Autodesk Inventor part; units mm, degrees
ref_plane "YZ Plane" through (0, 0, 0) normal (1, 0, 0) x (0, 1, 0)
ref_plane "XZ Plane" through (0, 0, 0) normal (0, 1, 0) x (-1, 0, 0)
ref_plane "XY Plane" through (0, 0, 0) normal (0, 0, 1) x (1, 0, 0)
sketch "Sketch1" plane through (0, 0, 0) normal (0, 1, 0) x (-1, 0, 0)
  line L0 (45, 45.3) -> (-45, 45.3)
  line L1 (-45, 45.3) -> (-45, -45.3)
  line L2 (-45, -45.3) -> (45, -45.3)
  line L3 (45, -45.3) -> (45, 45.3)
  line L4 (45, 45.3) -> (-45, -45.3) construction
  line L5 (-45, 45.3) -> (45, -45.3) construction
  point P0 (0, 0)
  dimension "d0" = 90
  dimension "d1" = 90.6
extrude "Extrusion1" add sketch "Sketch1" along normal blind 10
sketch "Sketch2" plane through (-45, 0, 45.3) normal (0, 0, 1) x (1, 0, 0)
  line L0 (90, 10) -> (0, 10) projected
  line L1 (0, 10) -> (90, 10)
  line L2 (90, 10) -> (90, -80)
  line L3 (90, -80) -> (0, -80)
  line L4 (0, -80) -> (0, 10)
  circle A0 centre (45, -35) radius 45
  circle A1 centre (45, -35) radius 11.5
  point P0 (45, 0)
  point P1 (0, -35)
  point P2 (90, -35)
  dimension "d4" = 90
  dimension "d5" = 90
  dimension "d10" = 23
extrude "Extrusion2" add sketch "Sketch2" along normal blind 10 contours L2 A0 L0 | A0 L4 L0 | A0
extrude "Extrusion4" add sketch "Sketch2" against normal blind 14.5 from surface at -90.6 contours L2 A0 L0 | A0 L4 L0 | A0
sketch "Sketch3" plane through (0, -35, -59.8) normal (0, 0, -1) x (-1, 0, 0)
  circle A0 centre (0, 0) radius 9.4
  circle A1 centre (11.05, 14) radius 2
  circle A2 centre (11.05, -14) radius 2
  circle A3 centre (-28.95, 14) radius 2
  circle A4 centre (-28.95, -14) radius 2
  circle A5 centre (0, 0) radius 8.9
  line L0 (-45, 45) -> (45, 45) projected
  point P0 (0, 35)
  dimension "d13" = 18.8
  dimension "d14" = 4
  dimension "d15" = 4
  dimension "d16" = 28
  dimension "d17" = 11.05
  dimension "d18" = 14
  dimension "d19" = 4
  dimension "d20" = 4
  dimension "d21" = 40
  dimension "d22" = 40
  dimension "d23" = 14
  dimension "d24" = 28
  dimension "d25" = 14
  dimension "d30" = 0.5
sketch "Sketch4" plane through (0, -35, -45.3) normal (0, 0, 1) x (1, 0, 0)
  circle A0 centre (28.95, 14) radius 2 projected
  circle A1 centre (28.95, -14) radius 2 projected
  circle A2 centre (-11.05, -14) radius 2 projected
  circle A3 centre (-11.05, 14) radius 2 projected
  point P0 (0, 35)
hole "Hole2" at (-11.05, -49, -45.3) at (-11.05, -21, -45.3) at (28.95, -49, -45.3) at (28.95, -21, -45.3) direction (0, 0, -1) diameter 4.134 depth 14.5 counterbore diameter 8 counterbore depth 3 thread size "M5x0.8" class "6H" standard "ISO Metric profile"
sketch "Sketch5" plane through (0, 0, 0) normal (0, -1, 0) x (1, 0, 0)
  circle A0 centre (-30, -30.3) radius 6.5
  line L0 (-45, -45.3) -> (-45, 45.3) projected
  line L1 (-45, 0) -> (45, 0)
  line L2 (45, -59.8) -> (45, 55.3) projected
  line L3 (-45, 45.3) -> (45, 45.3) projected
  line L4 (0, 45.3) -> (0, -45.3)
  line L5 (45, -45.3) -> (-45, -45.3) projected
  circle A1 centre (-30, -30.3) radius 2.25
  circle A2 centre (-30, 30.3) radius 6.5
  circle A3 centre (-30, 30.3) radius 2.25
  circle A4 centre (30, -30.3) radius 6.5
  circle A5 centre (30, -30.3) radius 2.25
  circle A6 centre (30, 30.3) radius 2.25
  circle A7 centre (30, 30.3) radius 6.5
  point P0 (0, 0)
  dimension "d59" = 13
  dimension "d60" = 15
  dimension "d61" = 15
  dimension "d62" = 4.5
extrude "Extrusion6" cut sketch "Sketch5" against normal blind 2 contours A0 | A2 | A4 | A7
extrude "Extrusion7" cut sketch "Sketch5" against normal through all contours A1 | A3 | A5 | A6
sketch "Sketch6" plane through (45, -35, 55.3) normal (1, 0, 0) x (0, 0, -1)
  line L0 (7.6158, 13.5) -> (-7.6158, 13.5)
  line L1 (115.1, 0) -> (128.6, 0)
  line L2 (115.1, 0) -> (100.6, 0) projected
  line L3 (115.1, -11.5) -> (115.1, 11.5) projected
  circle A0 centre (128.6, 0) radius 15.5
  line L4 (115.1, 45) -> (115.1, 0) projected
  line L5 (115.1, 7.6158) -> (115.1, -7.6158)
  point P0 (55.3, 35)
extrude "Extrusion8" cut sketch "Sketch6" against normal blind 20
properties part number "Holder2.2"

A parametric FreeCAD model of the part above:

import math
import FreeCAD as App
import Part
import Sketcher
from FreeCAD import Vector


def add_polygon(sketch, points):
    """Adds a closed chain of lines whose ends are joined by coincident constraints."""
    first, n = sketch.GeometryCount, len(points)
    for a, b in zip(points, points[1:] + points[:1]):
        sketch.addGeometry(Part.LineSegment(App.Vector(*a, 0), App.Vector(*b, 0)), False)
    for i in range(n):
        sketch.addConstraint(Sketcher.Constraint("Coincident", first + i, 2, first + (i + 1) % n, 1))

doc = App.newDocument("Part")
body = doc.addObject("PartDesign::Body", "Body")

# Sketch on XZ plane
sketch1 = doc.addObject("Sketcher::SketchObject", "Sketch")
body.addObject(sketch1)
sketch1.AttachmentSupport = (doc.XZ_Plane, [""])
sketch1.MapMode = "FlatFace"
add_polygon(sketch1, [(-45, -45.3), (-45, 45.3), (45, 45.3), (45, -45.3)])  # lines 0-3
sketch1.addConstraint(Sketcher.Constraint("Vertical", 0))
sketch1.addConstraint(Sketcher.Constraint("Horizontal", 1))
sketch1.addConstraint(Sketcher.Constraint("Vertical", 2))
sketch1.addConstraint(Sketcher.Constraint("Horizontal", 3))
sketch1.addConstraint(Sketcher.Constraint("Symmetric", 0, 2, 2, 2, -1, 1))
sketch1.addConstraint(Sketcher.Constraint("DistanceX", 1, 1, 1, 2, 90.0))
sketch1.addConstraint(Sketcher.Constraint("DistanceY", 0, 1, 0, 2, 90.6))
pad1 = doc.addObject("PartDesign::Pad", "Pad")
body.addObject(pad1)
pad1.Profile = sketch1
pad1.Length = 10
pad1.Reversed = True

# Sketch on XY plane
sketch2 = doc.addObject("Sketcher::SketchObject", "Sketch001")
body.addObject(sketch2)
sketch2.AttachmentSupport = (doc.XY_Plane, [""])
sketch2.MapMode = "FlatFace"
sketch2.AttachmentOffset = App.Placement(Vector(0, 0, 45.3), App.Rotation())
sketch2.addGeometry(Part.LineSegment(Vector(45, -35, 0), Vector(45, 10, 0)), False)
sketch2.addGeometry(Part.LineSegment(Vector(45, 10, 0), Vector(-45, 10, 0)), False)
sketch2.addGeometry(Part.LineSegment(Vector(-45, 10, 0), Vector(-45, -35, 0)), False)
sketch2.addGeometry(Part.ArcOfCircle(Part.Circle(Vector(0, -35, 0), Vector(0, 0, 1), 45), math.radians(180), math.radians(360)), False)
sketch2.addGeometry(Part.Circle(Vector(0, -35, 0), Vector(0, 0, 1), 11.5), False)
sketch2.addConstraint(Sketcher.Constraint("Coincident", 0, 2, 1, 1))
sketch2.addConstraint(Sketcher.Constraint("Coincident", 1, 2, 2, 1))
sketch2.addConstraint(Sketcher.Constraint("Tangent", 2, 2, 3, 1))
sketch2.addConstraint(Sketcher.Constraint("Tangent", 3, 2, 0, 1))
sketch2.addConstraint(Sketcher.Constraint("Vertical", 0))
sketch2.addConstraint(Sketcher.Constraint("Horizontal", 1))
sketch2.addConstraint(Sketcher.Constraint("Vertical", 2))
sketch2.addConstraint(Sketcher.Constraint("Coincident", 4, 3, 3, 3))
sketch2.addConstraint(Sketcher.Constraint("PointOnObject", 3, 3, -2))
sketch2.addConstraint(Sketcher.Constraint("Diameter", 4, 23.0))
sketch2.addConstraint(Sketcher.Constraint("Radius", 3, 45.0))
sketch2.addConstraint(Sketcher.Constraint("DistanceY", 0, 1, 0, 2, 45.0))
sketch2.addConstraint(Sketcher.Constraint("DistanceY", 3, 3, -1, 1, 35.0))
pad2 = doc.addObject("PartDesign::Pad", "Pad001")
body.addObject(pad2)
pad2.Profile = sketch2
pad2.Length = 10

# Sketch on XY plane
sketch3 = doc.addObject("Sketcher::SketchObject", "Sketch002")
body.addObject(sketch3)
sketch3.AttachmentSupport = (doc.XY_Plane, [""])
sketch3.MapMode = "FlatFace"
sketch3.AttachmentOffset = App.Placement(Vector(0, 0, -45.3), App.Rotation())
sketch3.addGeometry(Part.LineSegment(Vector(45, -35, 0), Vector(45, 10, 0)), False)
sketch3.addGeometry(Part.LineSegment(Vector(45, 10, 0), Vector(-45, 10, 0)), False)
sketch3.addGeometry(Part.LineSegment(Vector(-45, 10, 0), Vector(-45, -35, 0)), False)
sketch3.addGeometry(Part.ArcOfCircle(Part.Circle(Vector(0, -35, 0), Vector(0, 0, 1), 45), math.radians(180), math.radians(360)), False)
sketch3.addGeometry(Part.Circle(Vector(0, -35, 0), Vector(0, 0, 1), 11.5), False)
sketch3.addConstraint(Sketcher.Constraint("Coincident", 0, 2, 1, 1))
sketch3.addConstraint(Sketcher.Constraint("Coincident", 1, 2, 2, 1))
sketch3.addConstraint(Sketcher.Constraint("Tangent", 2, 2, 3, 1))
sketch3.addConstraint(Sketcher.Constraint("Tangent", 3, 2, 0, 1))
sketch3.addConstraint(Sketcher.Constraint("Vertical", 0))
sketch3.addConstraint(Sketcher.Constraint("Horizontal", 1))
sketch3.addConstraint(Sketcher.Constraint("Vertical", 2))
sketch3.addConstraint(Sketcher.Constraint("Coincident", 4, 3, 3, 3))
sketch3.addConstraint(Sketcher.Constraint("PointOnObject", 3, 3, -2))
sketch3.addConstraint(Sketcher.Constraint("Diameter", 4, 23.0))
sketch3.addConstraint(Sketcher.Constraint("Radius", 3, 45.0))
sketch3.addConstraint(Sketcher.Constraint("DistanceY", 0, 1, 0, 2, 45.0))
sketch3.addConstraint(Sketcher.Constraint("DistanceY", 3, 3, -1, 1, 35.0))
pad3 = doc.addObject("PartDesign::Pad", "Pad002")
body.addObject(pad3)
pad3.Profile = sketch3
pad3.Length = 14.5
pad3.Reversed = True

# Sketch on XY plane
sketch4 = doc.addObject("Sketcher::SketchObject", "Sketch003")
body.addObject(sketch4)
sketch4.AttachmentSupport = (doc.XY_Plane, [""])
sketch4.MapMode = "FlatFace"
sketch4.AttachmentOffset = App.Placement(Vector(0, 0, -45.3), App.Rotation())
sketch4.addGeometry(Part.Circle(Vector(-11.05, -49, 0), Vector(0, 0, 1), 2.067), False)
sketch4.addGeometry(Part.Circle(Vector(-11.05, -21, 0), Vector(0, 0, 1), 2.067), False)
sketch4.addGeometry(Part.Circle(Vector(28.95, -49, 0), Vector(0, 0, 1), 2.067), False)
sketch4.addGeometry(Part.Circle(Vector(28.95, -21, 0), Vector(0, 0, 1), 2.067), False)
sketch4.addConstraint(Sketcher.Constraint("Equal", 0, 1))
sketch4.addConstraint(Sketcher.Constraint("Equal", 1, 2))
sketch4.addConstraint(Sketcher.Constraint("Equal", 2, 3))
sketch4.addConstraint(Sketcher.Constraint("Horizontal", 0, 3, 2, 3))
sketch4.addConstraint(Sketcher.Constraint("Horizontal", 1, 3, 3, 3))
sketch4.addConstraint(Sketcher.Constraint("Vertical", 0, 3, 1, 3))
sketch4.addConstraint(Sketcher.Constraint("Vertical", 2, 3, 3, 3))
sketch4.addConstraint(Sketcher.Constraint("Diameter", 0, 4.134))
sketch4.addConstraint(Sketcher.Constraint("DistanceY", 0, 3, -1, 1, 49.0))
sketch4.addConstraint(Sketcher.Constraint("DistanceY", 1, 3, -1, 1, 21.0))
sketch4.addConstraint(Sketcher.Constraint("DistanceX", 0, 3, 2, 3, 40.0))
sketch4.addConstraint(Sketcher.Constraint("DistanceX", 0, 3, -1, 1, 11.05))
doc.recompute()
hole = doc.addObject("PartDesign::Hole", "Hole")
body.addObject(hole)
hole.Profile = sketch4
hole.ThreadType = "None"
hole.Diameter = 4.134
hole.DepthType = "Dimension"
hole.Depth = 14.5
hole.DrillPoint = "Flat"
hole.HoleCutType = "Counterbore"
hole.HoleCutDiameter = 8
hole.HoleCutDepth = 3

# Sketch on XZ plane
sketch5 = doc.addObject("Sketcher::SketchObject", "Sketch004")
body.addObject(sketch5)
sketch5.AttachmentSupport = (doc.XZ_Plane, [""])
sketch5.MapMode = "FlatFace"
sketch5.addGeometry(Part.Circle(Vector(-30, -30.3, 0), Vector(0, 0, 1), 6.5), False)
sketch5.addGeometry(Part.Circle(Vector(-30, -30.3, 0), Vector(0, 0, 1), 2.25), False)
sketch5.addGeometry(Part.Circle(Vector(-30, 30.3, 0), Vector(0, 0, 1), 6.5), False)
sketch5.addGeometry(Part.Circle(Vector(-30, 30.3, 0), Vector(0, 0, 1), 2.25), False)
sketch5.addGeometry(Part.Circle(Vector(30, -30.3, 0), Vector(0, 0, 1), 6.5), False)
sketch5.addGeometry(Part.Circle(Vector(30, -30.3, 0), Vector(0, 0, 1), 2.25), False)
sketch5.addGeometry(Part.Circle(Vector(30, 30.3, 0), Vector(0, 0, 1), 6.5), False)
sketch5.addGeometry(Part.Circle(Vector(30, 30.3, 0), Vector(0, 0, 1), 2.25), False)
sketch5.addConstraint(Sketcher.Constraint("Coincident", 1, 3, 0, 3))
sketch5.addConstraint(Sketcher.Constraint("Coincident", 3, 3, 2, 3))
sketch5.addConstraint(Sketcher.Constraint("Coincident", 5, 3, 4, 3))
sketch5.addConstraint(Sketcher.Constraint("Coincident", 7, 3, 6, 3))
sketch5.addConstraint(Sketcher.Constraint("Equal", 0, 2))
sketch5.addConstraint(Sketcher.Constraint("Equal", 1, 3))
sketch5.addConstraint(Sketcher.Constraint("Equal", 2, 4))
sketch5.addConstraint(Sketcher.Constraint("Equal", 3, 5))
sketch5.addConstraint(Sketcher.Constraint("Equal", 4, 6))
sketch5.addConstraint(Sketcher.Constraint("Equal", 5, 7))
sketch5.addConstraint(Sketcher.Constraint("Symmetric", 2, 3, 4, 3, -1, 1))
sketch5.addConstraint(Sketcher.Constraint("Symmetric", 0, 3, 6, 3, -1, 1))
sketch5.addConstraint(Sketcher.Constraint("Symmetric", 0, 3, 4, 3, -2))
sketch5.addConstraint(Sketcher.Constraint("Diameter", 0, 13.0))
sketch5.addConstraint(Sketcher.Constraint("Diameter", 1, 4.5))
sketch5.addConstraint(Sketcher.Constraint("DistanceX", 0, 3, -1, 1, 30.0))
sketch5.addConstraint(Sketcher.Constraint("DistanceY", 0, 3, -1, 1, 30.3))
pocket1 = doc.addObject("PartDesign::Pocket", "Pocket")
body.addObject(pocket1)
pocket1.Profile = sketch5
pocket1.Length = 2

# Sketch on XZ plane
sketch6 = doc.addObject("Sketcher::SketchObject", "Sketch005")
body.addObject(sketch6)
sketch6.AttachmentSupport = (doc.XZ_Plane, [""])
sketch6.MapMode = "FlatFace"
sketch6.addGeometry(Part.Circle(Vector(-30, -30.3, 0), Vector(0, 0, 1), 2.25), False)
sketch6.addGeometry(Part.Circle(Vector(-30, 30.3, 0), Vector(0, 0, 1), 2.25), False)
sketch6.addGeometry(Part.Circle(Vector(30, -30.3, 0), Vector(0, 0, 1), 2.25), False)
sketch6.addGeometry(Part.Circle(Vector(30, 30.3, 0), Vector(0, 0, 1), 2.25), False)
sketch6.addConstraint(Sketcher.Constraint("Equal", 0, 1))
sketch6.addConstraint(Sketcher.Constraint("Equal", 1, 2))
sketch6.addConstraint(Sketcher.Constraint("Equal", 2, 3))
sketch6.addConstraint(Sketcher.Constraint("Symmetric", 1, 3, 2, 3, -1, 1))
sketch6.addConstraint(Sketcher.Constraint("Symmetric", 0, 3, 3, 3, -1, 1))
sketch6.addConstraint(Sketcher.Constraint("Symmetric", 0, 3, 2, 3, -2))
sketch6.addConstraint(Sketcher.Constraint("Diameter", 0, 4.5))
sketch6.addConstraint(Sketcher.Constraint("DistanceX", 0, 3, -1, 1, 30.0))
sketch6.addConstraint(Sketcher.Constraint("DistanceY", 0, 3, -1, 1, 30.3))
pocket2 = doc.addObject("PartDesign::Pocket", "Pocket001")
body.addObject(pocket2)
pocket2.Profile = sketch6
pocket2.Type = "ThroughAll"

# Sketch on YZ plane
sketch7 = doc.addObject("Sketcher::SketchObject", "Sketch006")
body.addObject(sketch7)
sketch7.AttachmentSupport = (doc.YZ_Plane, [""])
sketch7.MapMode = "FlatFace"
sketch7.AttachmentOffset = App.Placement(Vector(0, 0, 45), App.Rotation())
sketch7.addGeometry(Part.Circle(Vector(-35, -73.3, 0), Vector(0, 0, 1), 15.5), False)
sketch7.addConstraint(Sketcher.Constraint("Diameter", 0, 31.0))
sketch7.addConstraint(Sketcher.Constraint("DistanceX", 0, 3, -1, 1, 35.0))
sketch7.addConstraint(Sketcher.Constraint("DistanceY", 0, 3, -1, 1, 73.3))
pocket3 = doc.addObject("PartDesign::Pocket", "Pocket002")
body.addObject(pocket3)
pocket3.Profile = sketch7
pocket3.Length = 20

doc.recompute()
